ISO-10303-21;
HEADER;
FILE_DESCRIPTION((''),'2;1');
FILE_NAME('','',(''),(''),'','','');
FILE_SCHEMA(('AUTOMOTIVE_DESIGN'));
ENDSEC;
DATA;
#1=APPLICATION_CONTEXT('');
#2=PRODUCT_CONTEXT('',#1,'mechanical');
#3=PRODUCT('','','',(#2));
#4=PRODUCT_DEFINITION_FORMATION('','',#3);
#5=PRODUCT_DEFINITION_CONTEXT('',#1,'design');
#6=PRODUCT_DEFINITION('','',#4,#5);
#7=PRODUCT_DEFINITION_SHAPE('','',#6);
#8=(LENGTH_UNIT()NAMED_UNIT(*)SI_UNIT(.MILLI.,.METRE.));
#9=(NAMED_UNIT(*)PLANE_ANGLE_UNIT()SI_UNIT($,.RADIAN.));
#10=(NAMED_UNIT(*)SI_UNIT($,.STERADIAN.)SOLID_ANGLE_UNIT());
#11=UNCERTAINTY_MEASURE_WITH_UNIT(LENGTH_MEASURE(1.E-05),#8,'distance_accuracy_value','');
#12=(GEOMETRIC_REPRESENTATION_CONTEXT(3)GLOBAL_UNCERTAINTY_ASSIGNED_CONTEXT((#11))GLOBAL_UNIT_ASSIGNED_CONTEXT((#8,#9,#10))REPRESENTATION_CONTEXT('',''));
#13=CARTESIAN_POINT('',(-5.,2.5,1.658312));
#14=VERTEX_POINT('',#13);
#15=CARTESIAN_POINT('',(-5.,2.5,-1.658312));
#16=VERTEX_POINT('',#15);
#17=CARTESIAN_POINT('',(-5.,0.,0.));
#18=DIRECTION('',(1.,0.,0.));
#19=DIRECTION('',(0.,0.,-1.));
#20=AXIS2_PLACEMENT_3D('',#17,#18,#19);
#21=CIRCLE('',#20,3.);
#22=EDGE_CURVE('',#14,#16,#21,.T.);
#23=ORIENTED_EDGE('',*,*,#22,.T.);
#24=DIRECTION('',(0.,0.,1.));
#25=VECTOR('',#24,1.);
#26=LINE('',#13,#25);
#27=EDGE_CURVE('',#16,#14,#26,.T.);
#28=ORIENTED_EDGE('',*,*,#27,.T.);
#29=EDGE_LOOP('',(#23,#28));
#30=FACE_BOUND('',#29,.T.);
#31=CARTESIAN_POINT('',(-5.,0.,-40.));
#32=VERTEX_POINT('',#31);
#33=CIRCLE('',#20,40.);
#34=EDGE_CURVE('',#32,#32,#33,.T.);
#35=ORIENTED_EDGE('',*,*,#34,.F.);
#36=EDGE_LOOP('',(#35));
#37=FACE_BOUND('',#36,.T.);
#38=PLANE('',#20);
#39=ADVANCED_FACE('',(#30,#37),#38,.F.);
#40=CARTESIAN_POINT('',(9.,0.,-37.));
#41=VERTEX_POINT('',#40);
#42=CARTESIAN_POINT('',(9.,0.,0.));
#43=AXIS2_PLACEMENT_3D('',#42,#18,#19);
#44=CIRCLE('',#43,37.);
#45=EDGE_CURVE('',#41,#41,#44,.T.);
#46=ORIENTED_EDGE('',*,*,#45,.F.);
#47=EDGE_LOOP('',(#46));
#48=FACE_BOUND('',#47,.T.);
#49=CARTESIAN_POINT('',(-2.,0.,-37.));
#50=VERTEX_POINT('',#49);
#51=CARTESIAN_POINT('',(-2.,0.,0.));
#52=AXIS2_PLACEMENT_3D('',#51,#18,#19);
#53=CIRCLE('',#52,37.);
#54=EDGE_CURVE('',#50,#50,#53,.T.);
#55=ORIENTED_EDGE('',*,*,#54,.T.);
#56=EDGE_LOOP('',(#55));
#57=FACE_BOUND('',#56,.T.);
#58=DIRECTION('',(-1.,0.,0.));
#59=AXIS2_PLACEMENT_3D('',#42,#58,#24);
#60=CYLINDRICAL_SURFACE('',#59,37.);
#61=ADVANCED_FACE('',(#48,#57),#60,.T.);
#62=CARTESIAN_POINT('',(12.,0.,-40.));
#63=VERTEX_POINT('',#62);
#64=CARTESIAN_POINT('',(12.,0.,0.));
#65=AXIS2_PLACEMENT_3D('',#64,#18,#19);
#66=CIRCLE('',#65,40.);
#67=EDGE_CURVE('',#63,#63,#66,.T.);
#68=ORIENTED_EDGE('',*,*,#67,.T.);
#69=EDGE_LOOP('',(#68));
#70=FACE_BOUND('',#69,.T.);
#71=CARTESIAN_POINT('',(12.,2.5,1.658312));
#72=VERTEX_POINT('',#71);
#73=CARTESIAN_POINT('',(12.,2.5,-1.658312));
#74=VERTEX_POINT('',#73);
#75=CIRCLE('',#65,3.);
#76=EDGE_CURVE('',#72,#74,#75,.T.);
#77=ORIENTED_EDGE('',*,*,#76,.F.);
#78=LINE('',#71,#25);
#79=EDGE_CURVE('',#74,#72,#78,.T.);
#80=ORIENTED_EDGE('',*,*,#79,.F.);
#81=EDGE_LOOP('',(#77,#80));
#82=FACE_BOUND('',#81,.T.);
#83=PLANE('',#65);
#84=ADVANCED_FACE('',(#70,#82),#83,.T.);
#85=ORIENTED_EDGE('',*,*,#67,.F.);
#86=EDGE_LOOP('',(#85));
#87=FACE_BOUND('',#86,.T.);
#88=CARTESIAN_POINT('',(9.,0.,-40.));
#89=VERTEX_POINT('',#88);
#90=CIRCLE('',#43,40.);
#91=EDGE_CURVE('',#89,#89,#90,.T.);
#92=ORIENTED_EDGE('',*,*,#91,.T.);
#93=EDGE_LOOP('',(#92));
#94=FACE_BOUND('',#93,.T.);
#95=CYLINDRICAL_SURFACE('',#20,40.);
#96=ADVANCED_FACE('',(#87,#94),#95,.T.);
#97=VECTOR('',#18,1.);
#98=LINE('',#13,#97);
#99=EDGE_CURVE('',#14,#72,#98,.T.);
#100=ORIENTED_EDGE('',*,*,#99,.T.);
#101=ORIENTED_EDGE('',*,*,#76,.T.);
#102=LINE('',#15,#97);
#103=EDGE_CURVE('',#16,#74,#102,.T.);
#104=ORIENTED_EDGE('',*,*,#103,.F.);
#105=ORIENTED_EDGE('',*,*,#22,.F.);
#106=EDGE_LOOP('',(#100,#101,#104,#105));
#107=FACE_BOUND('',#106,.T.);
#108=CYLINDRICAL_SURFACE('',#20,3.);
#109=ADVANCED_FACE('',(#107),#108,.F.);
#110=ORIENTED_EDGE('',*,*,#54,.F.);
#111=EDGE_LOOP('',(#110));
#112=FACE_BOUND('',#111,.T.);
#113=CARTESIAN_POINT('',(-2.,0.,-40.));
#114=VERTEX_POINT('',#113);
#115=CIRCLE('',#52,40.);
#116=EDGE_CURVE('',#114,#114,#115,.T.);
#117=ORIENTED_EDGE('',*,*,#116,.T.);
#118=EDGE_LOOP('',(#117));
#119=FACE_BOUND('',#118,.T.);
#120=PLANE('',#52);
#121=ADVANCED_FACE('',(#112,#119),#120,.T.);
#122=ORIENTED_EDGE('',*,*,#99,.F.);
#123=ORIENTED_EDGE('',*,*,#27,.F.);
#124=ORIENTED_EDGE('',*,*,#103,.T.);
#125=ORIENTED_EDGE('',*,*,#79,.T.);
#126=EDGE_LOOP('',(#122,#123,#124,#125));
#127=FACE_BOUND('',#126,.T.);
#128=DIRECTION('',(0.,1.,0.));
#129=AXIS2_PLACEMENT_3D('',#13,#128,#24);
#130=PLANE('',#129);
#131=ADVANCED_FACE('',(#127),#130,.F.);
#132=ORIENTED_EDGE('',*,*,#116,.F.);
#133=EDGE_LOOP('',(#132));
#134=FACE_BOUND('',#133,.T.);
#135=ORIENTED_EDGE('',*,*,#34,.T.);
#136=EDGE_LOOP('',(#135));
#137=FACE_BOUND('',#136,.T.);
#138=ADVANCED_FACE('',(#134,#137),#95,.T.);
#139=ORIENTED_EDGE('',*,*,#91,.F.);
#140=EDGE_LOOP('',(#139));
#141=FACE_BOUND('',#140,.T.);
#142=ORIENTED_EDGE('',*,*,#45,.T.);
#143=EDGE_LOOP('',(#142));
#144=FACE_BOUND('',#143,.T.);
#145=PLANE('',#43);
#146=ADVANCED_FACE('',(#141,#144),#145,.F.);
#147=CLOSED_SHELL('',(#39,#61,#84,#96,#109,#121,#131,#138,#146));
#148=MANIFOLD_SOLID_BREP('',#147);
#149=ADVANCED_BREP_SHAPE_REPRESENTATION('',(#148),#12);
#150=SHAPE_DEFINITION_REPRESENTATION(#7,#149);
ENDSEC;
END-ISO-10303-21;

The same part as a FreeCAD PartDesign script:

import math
import FreeCAD as App
import Part
import Sketcher
Q = App.Units.Quantity

doc = App.newDocument("Part")
params = doc.addObject("Spreadsheet::Sheet", "Params")
for row, (alias, value) in enumerate([
    ("sketch1_diameter", "80 mm"),
    ("sketch1_radius", "3 mm"),
    ("pad1_length", "12 mm"),
    ("pad1_length2", "5 mm"),
    ("sketch2_diameter", "80 mm"),
    ("sketch2_diameter2", "74 mm"),
    ("pocket1_length", "9 mm"),
    ("pocket1_length2", "2 mm"),
], start=1):
    params.set(f"A{row}", alias)
    params.set(f"B{row}", "=" + value)
    params.setAlias(f"B{row}", alias)

body = doc.addObject("PartDesign::Body", "Body")

# Sketch on YZ plane
sketch1 = doc.addObject("Sketcher::SketchObject", "Sketch")
body.addObject(sketch1)
sketch1.AttachmentSupport = (doc.YZ_Plane, [""])
sketch1.MapMode = "FlatFace"
sketch1.addGeometry(Part.Circle(App.Vector(0, 0, 0), App.Vector(0, 0, 1), 40), False)
sketch1.addGeometry(Part.ArcOfCircle(Part.Circle(App.Vector(0, 0, 0), App.Vector(0, 0, 1), 3), math.radians(34), math.radians(326)), False)
sketch1.addGeometry(Part.LineSegment(App.Vector(2.5, 1.7, 0), App.Vector(2.5, -1.7, 0)), False)
sketch1.addConstraint(Sketcher.Constraint("Coincident", 1, 1, 2, 1))
sketch1.addConstraint(Sketcher.Constraint("Coincident", 2, 2, 1, 2))
sketch1.addConstraint(Sketcher.Constraint("Vertical", 2))
sketch1.addConstraint(Sketcher.Constraint("Coincident", 0, 3, -1, 1))
sketch1.addConstraint(Sketcher.Constraint("Coincident", 1, 3, -1, 1))
sketch1.addConstraint(Sketcher.Constraint("Diameter", 0, Q("80 mm")))
sketch1.addConstraint(Sketcher.Constraint("Radius", 1, Q("3 mm")))
sketch1.addConstraint(Sketcher.Constraint("DistanceX", -1, 1, 1, 1, Q("2.5 mm")))
sketch1.setExpression("Constraints[5]", "Params.sketch1_diameter")
sketch1.setExpression("Constraints[6]", "Params.sketch1_radius")
pad1 = doc.addObject("PartDesign::Pad", "Pad")
body.addObject(pad1)
pad1.Profile = sketch1
pad1.Type = "TwoLengths"
pad1.setExpression("Length", "Params.pad1_length")
pad1.setExpression("Length2", "Params.pad1_length2")

# Sketch on YZ plane
sketch2 = doc.addObject("Sketcher::SketchObject", "Sketch001")
body.addObject(sketch2)
sketch2.AttachmentSupport = (doc.YZ_Plane, [""])
sketch2.MapMode = "FlatFace"
sketch2.addGeometry(Part.Circle(App.Vector(0, 0, 0), App.Vector(0, 0, 1), 40), False)
sketch2.addGeometry(Part.Circle(App.Vector(0, 0, 0), App.Vector(0, 0, 1), 37), False)
sketch2.addConstraint(Sketcher.Constraint("Coincident", 0, 3, -1, 1))
sketch2.addConstraint(Sketcher.Constraint("Coincident", 1, 3, -1, 1))
sketch2.addConstraint(Sketcher.Constraint("Diameter", 0, Q("80 mm")))
sketch2.addConstraint(Sketcher.Constraint("Diameter", 1, Q("74 mm")))
sketch2.setExpression("Constraints[2]", "Params.sketch2_diameter")
sketch2.setExpression("Constraints[3]", "Params.sketch2_diameter2")
pocket1 = doc.addObject("PartDesign::Pocket", "Pocket")
body.addObject(pocket1)
pocket1.Profile = sketch2
pocket1.Type = "TwoLengths"
pocket1.setExpression("Length", "Params.pocket1_length")
pocket1.setExpression("Length2", "Params.pocket1_length2")
pocket1.Reversed = True

doc.recompute()
